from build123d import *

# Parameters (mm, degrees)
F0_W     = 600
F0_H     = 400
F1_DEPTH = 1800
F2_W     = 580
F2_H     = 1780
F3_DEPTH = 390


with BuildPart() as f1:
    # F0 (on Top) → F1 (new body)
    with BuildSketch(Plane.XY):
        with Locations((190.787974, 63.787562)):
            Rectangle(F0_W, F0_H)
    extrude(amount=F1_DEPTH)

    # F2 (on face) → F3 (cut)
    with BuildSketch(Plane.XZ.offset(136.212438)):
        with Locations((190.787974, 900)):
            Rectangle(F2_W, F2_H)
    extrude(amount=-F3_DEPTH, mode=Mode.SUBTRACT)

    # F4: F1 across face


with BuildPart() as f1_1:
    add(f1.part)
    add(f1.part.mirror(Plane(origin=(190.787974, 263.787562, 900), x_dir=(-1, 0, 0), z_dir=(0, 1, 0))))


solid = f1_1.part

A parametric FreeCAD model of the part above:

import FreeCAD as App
import Part
import Sketcher
Q = App.Units.Quantity


def add_polygon(sketch, points):
    """Adds a closed chain of lines whose ends are joined by coincident constraints."""
    first, n = sketch.GeometryCount, len(points)
    for a, b in zip(points, points[1:] + points[:1]):
        sketch.addGeometry(Part.LineSegment(App.Vector(*a, 0), App.Vector(*b, 0)), False)
    for i in range(n):
        sketch.addConstraint(Sketcher.Constraint("Coincident", first + i, 2, first + (i + 1) % n, 1))

doc = App.newDocument("Part")
body = doc.addObject("PartDesign::Body", "Body")

# Sketch on XY plane
sketch1 = doc.addObject("Sketcher::SketchObject", "Sketch")
body.addObject(sketch1)
sketch1.AttachmentSupport = (doc.XY_Plane, [""])
sketch1.MapMode = "FlatFace"
add_polygon(sketch1, [(-109, 264), (-109, -136), (491, -136), (491, 264)])  # lines 0-3
sketch1.addConstraint([
    Sketcher.Constraint("Vertical", 0),
    Sketcher.Constraint("Horizontal", 1),
    Sketcher.Constraint("Vertical", 2),
    Sketcher.Constraint("Horizontal", 3),
    Sketcher.Constraint("DistanceX", 1, 1, 1, 2, Q("600 mm")),
    Sketcher.Constraint("DistanceY", 0, 2, 0, 1, Q("400 mm")),
    Sketcher.Constraint("DistanceY", 0, 2, -1, 1, Q("136.212438 mm")),
    Sketcher.Constraint("DistanceX", 0, 2, -1, 1, Q("109.212026 mm")),
])
pad1 = doc.addObject("PartDesign::Pad", "Pad")
body.addObject(pad1)
pad1.Profile = sketch1
pad1.Length = 1800

# Sketch on XZ plane
sketch2 = doc.addObject("Sketcher::SketchObject", "Sketch001")
body.addObject(sketch2)
sketch2.AttachmentSupport = (doc.XZ_Plane, [""])
sketch2.MapMode = "FlatFace"
sketch2.AttachmentOffset = App.Placement(App.Vector(0, 0, 136.212438), App.Rotation())
add_polygon(sketch2, [(-99, 1790), (-99, 10), (481, 10), (481, 1790)])  # lines 0-3
sketch2.addConstraint([
    Sketcher.Constraint("Vertical", 0),
    Sketcher.Constraint("Horizontal", 1),
    Sketcher.Constraint("Vertical", 2),
    Sketcher.Constraint("Horizontal", 3),
    Sketcher.Constraint("DistanceX", 1, 1, 1, 2, Q("580 mm")),
    Sketcher.Constraint("DistanceY", 0, 2, 0, 1, Q("1780 mm")),
    Sketcher.Constraint("DistanceY", -1, 1, 0, 2, Q("10 mm")),
    Sketcher.Constraint("DistanceX", 0, 2, -1, 1, Q("99.212026 mm")),
])
pocket1 = doc.addObject("PartDesign::Pocket", "Pocket")
body.addObject(pocket1)
pocket1.Profile = sketch2
pocket1.Length = 390
body2 = doc.addObject("PartDesign::Body", "Body001")
doc.recompute()

body2.BaseFeature = body
doc.recompute()

mirroring = doc.addObject("Part::Mirroring", "Mirroring")
mirroring.Source = body
mirroring.Base = App.Vector(190.787974, 263.787562, 900)
mirroring.Normal = App.Vector(0, 1, 0)
body3 = doc.addObject("PartDesign::Body", "Body002")
body3.BaseFeature = mirroring
boolean = doc.addObject("PartDesign::Boolean", "Boolean")
body2.addObject(boolean)
boolean.Type = "Fuse"
boolean.addObjects([body3])
doc.recompute()
mirroring.Visibility = False

doc.recompute()
